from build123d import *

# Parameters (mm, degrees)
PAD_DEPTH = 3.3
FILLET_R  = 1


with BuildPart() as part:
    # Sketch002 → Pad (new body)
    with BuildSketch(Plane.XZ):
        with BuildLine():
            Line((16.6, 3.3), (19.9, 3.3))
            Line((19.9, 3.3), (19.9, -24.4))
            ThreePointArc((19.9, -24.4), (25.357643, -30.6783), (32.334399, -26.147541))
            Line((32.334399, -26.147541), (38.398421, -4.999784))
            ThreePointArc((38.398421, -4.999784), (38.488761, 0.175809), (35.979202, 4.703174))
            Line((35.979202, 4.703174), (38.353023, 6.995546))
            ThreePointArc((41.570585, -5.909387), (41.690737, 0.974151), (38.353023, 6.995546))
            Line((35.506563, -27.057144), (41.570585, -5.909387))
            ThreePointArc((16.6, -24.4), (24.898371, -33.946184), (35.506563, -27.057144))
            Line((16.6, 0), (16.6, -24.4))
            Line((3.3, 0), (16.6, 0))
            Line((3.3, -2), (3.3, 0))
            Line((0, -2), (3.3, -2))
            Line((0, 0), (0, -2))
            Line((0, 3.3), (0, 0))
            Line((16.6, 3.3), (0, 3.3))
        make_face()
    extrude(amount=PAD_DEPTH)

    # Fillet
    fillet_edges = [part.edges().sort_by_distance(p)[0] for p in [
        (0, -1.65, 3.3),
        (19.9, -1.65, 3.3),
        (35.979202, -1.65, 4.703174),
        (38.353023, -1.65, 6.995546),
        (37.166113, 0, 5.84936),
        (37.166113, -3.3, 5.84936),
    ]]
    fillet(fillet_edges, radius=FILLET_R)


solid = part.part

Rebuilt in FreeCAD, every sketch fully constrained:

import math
import FreeCAD as App
import Part
import Sketcher

V = App.Vector
Q = App.Units.Quantity


def edges_at(feature, points):
    """Names of the edges that pass closest to the given points."""
    edges = feature.Shape.Edges
    near = lambda p: min(range(len(edges)), key=lambda i: edges[i].distToShape(Part.Vertex(*p))[0])
    return sorted({f"Edge{near(p) + 1}" for p in points})

doc = App.newDocument("Part")
body = doc.addObject("PartDesign::Body", "Body")

sketch1 = body.newObject("Sketcher::SketchObject", "Sketch")
sketch1.AttachmentSupport = (doc.getObject("XZ_Plane"), [""])
sketch1.MapMode = "FlatFace"
sketch1.addGeometry([
    Part.LineSegment(V(19.9, 3.3, 0), V(0, 3.3, 0)),
    Part.LineSegment(V(0, 3.3, 0), V(0, -2, 0)),
    Part.LineSegment(V(0, -2, 0), V(3.3, -2, 0)),
    Part.LineSegment(V(3.3, -2, 0), V(3.3, 0, 0)),
    Part.LineSegment(V(3.3, 0, 0), V(16.6, 0, 0)),
    Part.LineSegment(V(16.6, 0, 0), V(16.6, -24.4, 0)),
    Part.ArcOfCircle(Part.Circle(V(26.24, -24.4, 0), V(0, 0, 1), 9.64), math.radians(-179.999998), math.radians(-16.000001)),
    Part.LineSegment(V(35.506563, -27.057144, 0), V(41.570585, -5.909387, 0)),
    Part.ArcOfCircle(Part.Circle(V(28.785803, -2.243411, 0), V(0, 0, 1), 13.300001), math.radians(-15.999993), math.radians(44)),
    Part.LineSegment(V(38.353023, 6.995546, 0), V(35.979202, 4.703174, 0)),
    Part.ArcOfCircle(Part.Circle(V(28.785801, -2.243411, 0), V(0, 0, 1), 10.000003), math.radians(-15.999993), math.radians(43.999992)),
    Part.LineSegment(V(38.398421, -4.999784, 0), V(32.334399, -26.147541, 0)),
    Part.ArcOfCircle(Part.Circle(V(26.24, -24.4, 0), V(0, 0, 1), 6.34), math.radians(179.999996), math.radians(344.000003)),
    Part.LineSegment(V(19.9, -24.4, 0), V(19.9, 3.3, 0)),
], False)
sketch1.addConstraint([
    Sketcher.Constraint("Coincident", 0, 2, 1, 1),
    Sketcher.Constraint("Coincident", 1, 2, 2, 1),
    Sketcher.Constraint("Coincident", 2, 2, 3, 1),
    Sketcher.Constraint("Coincident", 3, 2, 4, 1),
    Sketcher.Constraint("Coincident", 4, 2, 5, 1),
    Sketcher.Constraint("Tangent", 5, 2, 6, 1),
    Sketcher.Constraint("Tangent", 6, 2, 7, 1),
    Sketcher.Constraint("Tangent", 7, 2, 8, 1),
    Sketcher.Constraint("Coincident", 8, 2, 9, 1),
    Sketcher.Constraint("Coincident", 9, 2, 10, 2),
    Sketcher.Constraint("Tangent", 10, 1, 11, 1),
    Sketcher.Constraint("Tangent", 11, 2, 12, 2),
    Sketcher.Constraint("Tangent", 12, 1, 13, 1),
    Sketcher.Constraint("Coincident", 13, 2, 0, 1),
    Sketcher.Constraint("Horizontal", 0),
    Sketcher.Constraint("Vertical", 1),
    Sketcher.Constraint("Horizontal", 2),
    Sketcher.Constraint("Vertical", 3),
    Sketcher.Constraint("Horizontal", 4),
    Sketcher.Constraint("Vertical", 5),
    Sketcher.Constraint("Vertical", 13),
    Sketcher.Constraint("Coincident", 10, 3, 8, 3),
    Sketcher.Constraint("Coincident", 12, 3, 6, 3),
    Sketcher.Constraint("PointOnObject", 0, 2, -2),
    Sketcher.Constraint("PointOnObject", 3, 2, -1),
    Sketcher.Constraint("Parallel", 7, 11),
    Sketcher.Constraint("Radius", 8, Q("13.300001 mm")),
    Sketcher.Constraint("DistanceY", 3, 1, 3, 2, Q("2 mm")),
    Sketcher.Constraint("Angle", 7, Q("73.999999 deg")),
    Sketcher.Constraint("Angle", 9, Q("-136.000004 deg")),
    Sketcher.Constraint("Radius", 6, Q("9.64 mm")),
    Sketcher.Constraint("Radius", 12, Q("6.34 mm")),
    Sketcher.Constraint("Distance", 7, Q("22 mm")),
    Sketcher.Constraint("DistanceX", 0, 2, 0, 1, Q("19.9 mm")),
    Sketcher.Constraint("DistanceX", 2, 1, 2, 2, Q("3.3 mm")),
    Sketcher.Constraint("DistanceY", 1, 2, 1, 1, Q("5.3 mm")),
    Sketcher.Constraint("DistanceY", 5, 2, 5, 1, Q("24.4 mm")),
    Sketcher.Constraint("DistanceX", 8, 3, 9, 2, Q("7.193399 mm")),
])
pad1 = body.newObject("PartDesign::Pad", "Pad")
pad1.Profile = sketch1
pad1.Length = 3.3
doc.recompute()

fillet = body.newObject("PartDesign::Fillet", "Fillet")
fillet.Base = (pad1, edges_at(pad1, [
    (0, -1.65, 3.3),
    (19.9, -1.65, 3.3),
    (35.979, -1.65, 4.703),
    (38.353, -1.65, 6.996),
    (37.166, 0, 5.849),
    (37.166, -3.3, 5.849),
]))
fillet.Radius = 1

doc.recompute()
